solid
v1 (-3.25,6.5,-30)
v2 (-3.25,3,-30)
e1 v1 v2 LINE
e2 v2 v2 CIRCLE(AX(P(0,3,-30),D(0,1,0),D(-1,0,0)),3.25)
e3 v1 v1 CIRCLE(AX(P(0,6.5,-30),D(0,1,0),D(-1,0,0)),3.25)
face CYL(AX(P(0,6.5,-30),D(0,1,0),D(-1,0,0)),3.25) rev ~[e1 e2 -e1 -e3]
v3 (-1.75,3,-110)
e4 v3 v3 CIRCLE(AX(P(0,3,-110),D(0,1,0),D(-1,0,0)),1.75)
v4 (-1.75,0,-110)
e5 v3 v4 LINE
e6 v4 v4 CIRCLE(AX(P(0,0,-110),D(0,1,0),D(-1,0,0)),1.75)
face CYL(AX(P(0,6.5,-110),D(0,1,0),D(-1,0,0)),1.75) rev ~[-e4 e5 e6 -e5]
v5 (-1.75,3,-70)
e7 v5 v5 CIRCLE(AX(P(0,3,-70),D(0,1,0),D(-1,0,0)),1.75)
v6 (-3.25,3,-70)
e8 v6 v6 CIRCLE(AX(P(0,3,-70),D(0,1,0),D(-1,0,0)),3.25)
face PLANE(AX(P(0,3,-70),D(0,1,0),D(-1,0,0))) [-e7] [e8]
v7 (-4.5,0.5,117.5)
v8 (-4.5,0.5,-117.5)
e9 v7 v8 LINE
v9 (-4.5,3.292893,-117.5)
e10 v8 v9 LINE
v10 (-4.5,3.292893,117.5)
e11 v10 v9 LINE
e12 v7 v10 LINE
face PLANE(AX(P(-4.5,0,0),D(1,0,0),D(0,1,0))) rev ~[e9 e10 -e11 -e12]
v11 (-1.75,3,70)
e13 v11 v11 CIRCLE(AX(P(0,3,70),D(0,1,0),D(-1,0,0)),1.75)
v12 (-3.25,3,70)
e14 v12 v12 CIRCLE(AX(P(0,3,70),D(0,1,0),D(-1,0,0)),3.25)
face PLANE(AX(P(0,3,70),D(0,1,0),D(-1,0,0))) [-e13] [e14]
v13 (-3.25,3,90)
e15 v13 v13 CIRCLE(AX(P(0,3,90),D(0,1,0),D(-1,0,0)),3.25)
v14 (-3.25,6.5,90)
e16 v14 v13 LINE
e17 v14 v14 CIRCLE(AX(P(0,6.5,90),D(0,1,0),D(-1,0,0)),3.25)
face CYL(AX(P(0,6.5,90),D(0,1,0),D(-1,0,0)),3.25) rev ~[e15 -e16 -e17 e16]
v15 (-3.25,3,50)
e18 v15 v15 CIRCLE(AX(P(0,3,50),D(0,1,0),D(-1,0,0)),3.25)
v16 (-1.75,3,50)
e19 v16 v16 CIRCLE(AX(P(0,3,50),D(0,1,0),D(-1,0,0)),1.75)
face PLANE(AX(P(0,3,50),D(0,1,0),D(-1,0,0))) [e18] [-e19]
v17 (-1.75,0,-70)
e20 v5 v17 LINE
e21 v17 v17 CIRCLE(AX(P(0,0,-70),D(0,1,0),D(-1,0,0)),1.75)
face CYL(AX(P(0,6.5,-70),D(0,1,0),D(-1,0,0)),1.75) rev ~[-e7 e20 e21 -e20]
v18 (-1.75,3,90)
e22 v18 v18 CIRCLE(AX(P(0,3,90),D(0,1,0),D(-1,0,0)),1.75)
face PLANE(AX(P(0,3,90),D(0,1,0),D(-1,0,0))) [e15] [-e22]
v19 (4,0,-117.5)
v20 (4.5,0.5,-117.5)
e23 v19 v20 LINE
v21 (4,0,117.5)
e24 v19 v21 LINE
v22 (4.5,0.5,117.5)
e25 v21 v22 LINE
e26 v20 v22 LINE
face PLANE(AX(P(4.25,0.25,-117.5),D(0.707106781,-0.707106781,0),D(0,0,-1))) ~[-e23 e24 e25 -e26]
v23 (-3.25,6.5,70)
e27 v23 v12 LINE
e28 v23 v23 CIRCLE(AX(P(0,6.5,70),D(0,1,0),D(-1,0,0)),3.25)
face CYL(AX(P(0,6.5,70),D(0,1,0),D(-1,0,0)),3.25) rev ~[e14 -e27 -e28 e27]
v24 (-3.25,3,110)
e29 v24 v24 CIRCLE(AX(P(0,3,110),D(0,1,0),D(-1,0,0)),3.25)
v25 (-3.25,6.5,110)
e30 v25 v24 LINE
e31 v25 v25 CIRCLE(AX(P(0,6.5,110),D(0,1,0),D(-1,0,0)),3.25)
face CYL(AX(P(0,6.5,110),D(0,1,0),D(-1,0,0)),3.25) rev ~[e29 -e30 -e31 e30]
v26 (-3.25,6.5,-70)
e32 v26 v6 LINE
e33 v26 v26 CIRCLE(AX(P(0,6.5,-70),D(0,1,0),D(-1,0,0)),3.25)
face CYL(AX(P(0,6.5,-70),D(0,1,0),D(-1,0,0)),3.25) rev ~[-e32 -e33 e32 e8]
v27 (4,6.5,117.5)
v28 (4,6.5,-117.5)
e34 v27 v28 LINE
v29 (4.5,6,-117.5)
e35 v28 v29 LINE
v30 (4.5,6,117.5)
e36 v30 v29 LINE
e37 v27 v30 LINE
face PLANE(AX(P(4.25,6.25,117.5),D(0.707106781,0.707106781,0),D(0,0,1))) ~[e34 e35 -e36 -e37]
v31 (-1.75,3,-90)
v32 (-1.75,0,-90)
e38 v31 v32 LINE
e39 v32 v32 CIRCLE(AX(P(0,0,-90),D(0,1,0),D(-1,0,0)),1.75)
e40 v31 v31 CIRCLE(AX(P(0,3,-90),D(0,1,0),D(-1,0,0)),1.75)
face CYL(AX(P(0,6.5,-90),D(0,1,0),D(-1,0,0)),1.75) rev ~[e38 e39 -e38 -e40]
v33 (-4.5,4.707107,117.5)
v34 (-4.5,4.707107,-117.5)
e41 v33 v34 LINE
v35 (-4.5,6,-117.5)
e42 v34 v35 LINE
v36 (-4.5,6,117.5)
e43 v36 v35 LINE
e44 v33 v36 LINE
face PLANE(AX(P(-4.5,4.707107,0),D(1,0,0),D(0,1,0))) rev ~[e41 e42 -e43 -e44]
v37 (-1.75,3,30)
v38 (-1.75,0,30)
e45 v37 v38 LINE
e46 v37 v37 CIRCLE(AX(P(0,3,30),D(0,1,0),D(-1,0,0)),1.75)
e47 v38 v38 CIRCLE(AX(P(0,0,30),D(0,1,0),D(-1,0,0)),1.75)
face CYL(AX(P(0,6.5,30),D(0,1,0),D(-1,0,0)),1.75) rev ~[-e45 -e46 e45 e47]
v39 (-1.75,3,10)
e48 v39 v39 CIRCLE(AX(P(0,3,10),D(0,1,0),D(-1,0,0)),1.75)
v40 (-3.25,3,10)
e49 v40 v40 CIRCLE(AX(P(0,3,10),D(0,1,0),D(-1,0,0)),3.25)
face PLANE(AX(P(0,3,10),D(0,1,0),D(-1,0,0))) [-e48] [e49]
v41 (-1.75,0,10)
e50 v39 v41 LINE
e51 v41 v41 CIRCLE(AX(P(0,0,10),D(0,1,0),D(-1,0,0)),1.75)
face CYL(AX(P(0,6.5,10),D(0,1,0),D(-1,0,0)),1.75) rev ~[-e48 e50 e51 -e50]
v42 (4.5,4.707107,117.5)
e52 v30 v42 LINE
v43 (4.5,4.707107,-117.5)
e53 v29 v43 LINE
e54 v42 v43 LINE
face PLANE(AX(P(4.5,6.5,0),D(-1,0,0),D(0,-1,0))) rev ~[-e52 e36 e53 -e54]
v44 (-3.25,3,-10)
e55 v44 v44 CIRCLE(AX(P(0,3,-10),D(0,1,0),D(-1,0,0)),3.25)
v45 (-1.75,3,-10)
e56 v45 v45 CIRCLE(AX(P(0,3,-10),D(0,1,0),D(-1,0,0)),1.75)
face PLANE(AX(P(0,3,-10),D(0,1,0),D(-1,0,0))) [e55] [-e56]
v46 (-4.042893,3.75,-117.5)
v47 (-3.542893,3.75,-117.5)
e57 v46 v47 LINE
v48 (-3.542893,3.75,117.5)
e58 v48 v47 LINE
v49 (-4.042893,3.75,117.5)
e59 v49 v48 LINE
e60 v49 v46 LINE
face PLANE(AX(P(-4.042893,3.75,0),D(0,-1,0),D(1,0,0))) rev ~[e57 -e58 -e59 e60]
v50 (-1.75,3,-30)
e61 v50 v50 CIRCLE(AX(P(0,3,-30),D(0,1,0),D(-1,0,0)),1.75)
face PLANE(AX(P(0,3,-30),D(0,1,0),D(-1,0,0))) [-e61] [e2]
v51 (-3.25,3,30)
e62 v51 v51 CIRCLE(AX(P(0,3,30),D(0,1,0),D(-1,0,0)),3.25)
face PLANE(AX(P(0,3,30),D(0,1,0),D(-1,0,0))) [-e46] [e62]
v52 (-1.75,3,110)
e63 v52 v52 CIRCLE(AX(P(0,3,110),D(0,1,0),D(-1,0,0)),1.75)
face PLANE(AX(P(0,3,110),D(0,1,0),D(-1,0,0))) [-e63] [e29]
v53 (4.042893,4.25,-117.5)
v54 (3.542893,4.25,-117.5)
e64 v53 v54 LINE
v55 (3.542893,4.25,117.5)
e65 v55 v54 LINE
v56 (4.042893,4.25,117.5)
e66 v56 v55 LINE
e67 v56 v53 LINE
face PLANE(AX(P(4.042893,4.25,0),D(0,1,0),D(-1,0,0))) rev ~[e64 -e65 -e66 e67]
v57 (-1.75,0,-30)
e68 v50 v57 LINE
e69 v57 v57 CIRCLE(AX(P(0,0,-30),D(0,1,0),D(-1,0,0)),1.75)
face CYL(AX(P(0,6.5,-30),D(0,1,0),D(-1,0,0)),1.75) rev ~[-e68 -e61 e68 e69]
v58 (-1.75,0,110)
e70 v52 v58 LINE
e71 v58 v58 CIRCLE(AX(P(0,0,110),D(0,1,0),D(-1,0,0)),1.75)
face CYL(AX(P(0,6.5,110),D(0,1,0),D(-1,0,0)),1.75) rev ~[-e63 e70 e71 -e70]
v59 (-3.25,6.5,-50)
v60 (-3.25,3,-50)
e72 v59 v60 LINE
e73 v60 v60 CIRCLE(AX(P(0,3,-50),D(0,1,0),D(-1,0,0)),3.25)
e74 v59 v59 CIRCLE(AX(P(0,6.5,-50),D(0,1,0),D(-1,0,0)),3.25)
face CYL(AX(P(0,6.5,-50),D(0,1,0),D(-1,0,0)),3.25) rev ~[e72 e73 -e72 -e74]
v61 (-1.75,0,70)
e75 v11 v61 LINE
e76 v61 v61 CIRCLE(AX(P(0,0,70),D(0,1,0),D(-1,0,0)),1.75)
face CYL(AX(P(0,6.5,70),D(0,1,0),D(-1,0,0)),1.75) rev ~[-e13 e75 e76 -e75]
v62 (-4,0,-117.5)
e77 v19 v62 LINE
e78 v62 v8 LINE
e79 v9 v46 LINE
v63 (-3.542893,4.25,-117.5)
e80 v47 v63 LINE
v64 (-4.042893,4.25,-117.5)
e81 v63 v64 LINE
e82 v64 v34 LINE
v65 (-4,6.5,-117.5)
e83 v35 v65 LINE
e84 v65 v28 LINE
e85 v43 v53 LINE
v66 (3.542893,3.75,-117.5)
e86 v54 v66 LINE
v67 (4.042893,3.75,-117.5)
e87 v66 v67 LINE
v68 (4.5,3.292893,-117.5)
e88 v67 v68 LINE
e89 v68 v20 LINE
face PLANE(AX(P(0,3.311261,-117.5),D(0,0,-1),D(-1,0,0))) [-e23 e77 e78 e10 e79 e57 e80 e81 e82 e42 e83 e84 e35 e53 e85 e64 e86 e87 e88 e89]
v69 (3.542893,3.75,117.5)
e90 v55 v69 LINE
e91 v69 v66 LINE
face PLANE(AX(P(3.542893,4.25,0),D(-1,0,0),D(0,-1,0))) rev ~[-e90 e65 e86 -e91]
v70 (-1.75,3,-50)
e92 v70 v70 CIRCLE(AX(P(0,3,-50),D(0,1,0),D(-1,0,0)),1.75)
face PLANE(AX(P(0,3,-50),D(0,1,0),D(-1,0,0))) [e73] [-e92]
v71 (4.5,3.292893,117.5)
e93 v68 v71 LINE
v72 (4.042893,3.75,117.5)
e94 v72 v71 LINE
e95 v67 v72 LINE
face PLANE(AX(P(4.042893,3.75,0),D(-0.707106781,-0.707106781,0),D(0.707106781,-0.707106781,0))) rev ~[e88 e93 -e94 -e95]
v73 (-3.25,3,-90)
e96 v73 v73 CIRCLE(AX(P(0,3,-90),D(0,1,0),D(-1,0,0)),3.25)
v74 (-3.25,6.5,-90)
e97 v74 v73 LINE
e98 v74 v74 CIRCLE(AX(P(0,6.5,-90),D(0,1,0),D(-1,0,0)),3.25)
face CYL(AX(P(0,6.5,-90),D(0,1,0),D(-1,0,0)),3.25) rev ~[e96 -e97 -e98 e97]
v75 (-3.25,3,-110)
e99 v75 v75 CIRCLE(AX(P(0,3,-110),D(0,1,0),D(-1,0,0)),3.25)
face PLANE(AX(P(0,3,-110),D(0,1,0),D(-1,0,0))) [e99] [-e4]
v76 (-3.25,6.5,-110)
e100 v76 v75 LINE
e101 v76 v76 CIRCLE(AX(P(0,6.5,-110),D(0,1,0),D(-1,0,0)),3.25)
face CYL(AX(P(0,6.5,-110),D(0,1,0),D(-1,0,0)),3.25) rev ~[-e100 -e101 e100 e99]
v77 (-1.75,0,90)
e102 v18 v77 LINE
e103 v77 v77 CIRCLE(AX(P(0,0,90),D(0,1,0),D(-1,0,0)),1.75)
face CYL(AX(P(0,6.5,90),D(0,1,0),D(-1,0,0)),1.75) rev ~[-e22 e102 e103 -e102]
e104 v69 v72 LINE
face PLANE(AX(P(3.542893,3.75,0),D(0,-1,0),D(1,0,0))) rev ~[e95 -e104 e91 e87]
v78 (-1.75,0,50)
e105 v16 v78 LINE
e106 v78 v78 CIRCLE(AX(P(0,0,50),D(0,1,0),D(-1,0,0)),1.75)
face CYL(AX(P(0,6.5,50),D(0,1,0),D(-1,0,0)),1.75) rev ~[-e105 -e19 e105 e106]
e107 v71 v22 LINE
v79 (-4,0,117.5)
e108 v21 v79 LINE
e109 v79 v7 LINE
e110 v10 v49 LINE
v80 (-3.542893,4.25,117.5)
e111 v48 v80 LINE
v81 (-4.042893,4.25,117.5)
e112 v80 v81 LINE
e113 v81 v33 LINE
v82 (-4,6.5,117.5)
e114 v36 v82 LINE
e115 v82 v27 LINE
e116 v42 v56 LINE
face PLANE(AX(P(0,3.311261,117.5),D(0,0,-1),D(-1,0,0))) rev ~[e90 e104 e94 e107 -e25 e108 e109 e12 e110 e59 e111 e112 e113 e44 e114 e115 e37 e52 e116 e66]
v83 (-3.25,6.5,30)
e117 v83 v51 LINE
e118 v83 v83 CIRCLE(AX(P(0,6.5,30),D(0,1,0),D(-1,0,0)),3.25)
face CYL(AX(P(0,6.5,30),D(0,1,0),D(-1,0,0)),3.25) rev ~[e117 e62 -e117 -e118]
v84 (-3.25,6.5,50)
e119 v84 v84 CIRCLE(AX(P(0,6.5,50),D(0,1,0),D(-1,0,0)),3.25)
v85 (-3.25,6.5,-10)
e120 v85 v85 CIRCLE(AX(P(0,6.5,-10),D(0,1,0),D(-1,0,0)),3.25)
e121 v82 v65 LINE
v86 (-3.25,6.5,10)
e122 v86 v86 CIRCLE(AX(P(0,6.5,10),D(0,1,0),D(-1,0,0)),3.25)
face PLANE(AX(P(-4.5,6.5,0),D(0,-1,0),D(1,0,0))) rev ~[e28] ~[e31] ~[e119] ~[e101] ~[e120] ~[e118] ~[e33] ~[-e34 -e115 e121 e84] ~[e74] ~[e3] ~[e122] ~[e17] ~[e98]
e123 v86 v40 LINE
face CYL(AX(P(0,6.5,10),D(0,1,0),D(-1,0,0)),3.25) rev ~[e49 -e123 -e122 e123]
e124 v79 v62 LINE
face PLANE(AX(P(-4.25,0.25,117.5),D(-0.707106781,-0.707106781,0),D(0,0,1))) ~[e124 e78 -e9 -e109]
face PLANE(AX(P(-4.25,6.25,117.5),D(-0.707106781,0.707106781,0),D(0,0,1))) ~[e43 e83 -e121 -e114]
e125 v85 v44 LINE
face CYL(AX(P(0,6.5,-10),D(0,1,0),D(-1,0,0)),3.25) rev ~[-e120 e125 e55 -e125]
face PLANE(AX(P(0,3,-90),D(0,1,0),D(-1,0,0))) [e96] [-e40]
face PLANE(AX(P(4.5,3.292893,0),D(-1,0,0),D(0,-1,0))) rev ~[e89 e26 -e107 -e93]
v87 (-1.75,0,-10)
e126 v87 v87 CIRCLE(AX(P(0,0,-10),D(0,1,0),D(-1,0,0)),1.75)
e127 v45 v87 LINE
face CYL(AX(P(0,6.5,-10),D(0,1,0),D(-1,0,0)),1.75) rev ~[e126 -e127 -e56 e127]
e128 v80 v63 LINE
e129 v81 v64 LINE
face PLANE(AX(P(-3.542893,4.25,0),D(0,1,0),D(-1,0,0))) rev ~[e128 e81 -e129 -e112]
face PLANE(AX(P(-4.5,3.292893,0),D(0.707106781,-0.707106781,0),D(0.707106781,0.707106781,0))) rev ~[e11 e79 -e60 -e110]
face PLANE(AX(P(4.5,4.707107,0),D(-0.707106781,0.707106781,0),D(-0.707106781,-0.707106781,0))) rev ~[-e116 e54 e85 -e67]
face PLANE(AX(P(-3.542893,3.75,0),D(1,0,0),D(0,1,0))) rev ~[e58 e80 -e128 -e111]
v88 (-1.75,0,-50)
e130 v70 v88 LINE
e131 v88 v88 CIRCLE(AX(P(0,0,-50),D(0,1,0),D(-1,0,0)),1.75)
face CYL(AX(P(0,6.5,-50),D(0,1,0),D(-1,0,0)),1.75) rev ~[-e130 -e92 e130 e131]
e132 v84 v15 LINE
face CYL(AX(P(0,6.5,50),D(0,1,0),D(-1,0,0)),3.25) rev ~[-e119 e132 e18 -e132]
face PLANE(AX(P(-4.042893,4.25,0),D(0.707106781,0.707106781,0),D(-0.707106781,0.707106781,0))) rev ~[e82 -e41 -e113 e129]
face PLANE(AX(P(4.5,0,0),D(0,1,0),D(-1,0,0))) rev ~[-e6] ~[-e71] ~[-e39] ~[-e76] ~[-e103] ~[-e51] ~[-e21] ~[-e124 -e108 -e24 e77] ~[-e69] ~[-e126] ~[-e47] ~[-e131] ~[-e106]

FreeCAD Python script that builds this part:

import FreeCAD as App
import Part
import Sketcher
from FreeCAD import Vector
Q = App.Units.Quantity


def edges_at(feature, points):
    """Names of the edges that pass closest to the given points."""
    edges = feature.Shape.Edges
    near = lambda p: min(range(len(edges)), key=lambda i: edges[i].distToShape(Part.Vertex(*p))[0])
    return sorted({f"Edge{near(p) + 1}" for p in points})

doc = App.newDocument("Part")
body = doc.addObject("PartDesign::Body", "Body")

# Sketch on XY plane
sketch1 = body.newObject("Sketcher::SketchObject", "Sketch")
sketch1.AttachmentSupport = (doc.getObject("XY_Plane"), [""])
sketch1.MapMode = "FlatFace"
sketch1.addGeometry([
    Part.LineSegment(Vector(-4.5, 0, 0), Vector(4.5, 0, 0)),  # 0
    Part.LineSegment(Vector(4.5, 0, 0), Vector(4.5, 3.29, 0)),  # 1
    Part.LineSegment(Vector(4.5, 3.29, 0), Vector(4.04, 3.75, 0)),  # 2
    Part.LineSegment(Vector(4.04, 3.75, 0), Vector(3.54, 3.75, 0)),  # 3
    Part.LineSegment(Vector(3.54, 3.75, 0), Vector(3.54, 4.25, 0)),  # 4
    Part.LineSegment(Vector(3.54, 4.25, 0), Vector(4.04, 4.25, 0)),  # 5
    Part.LineSegment(Vector(4.04, 4.25, 0), Vector(4.5, 4.71, 0)),  # 6
    Part.LineSegment(Vector(4.5, 4.71, 0), Vector(4.5, 6.5, 0)),  # 7
    Part.LineSegment(Vector(4.5, 6.5, 0), Vector(-4.5, 6.5, 0)),  # 8
    Part.LineSegment(Vector(-4.5, 6.5, 0), Vector(-4.5, 4.71, 0)),  # 9
    Part.LineSegment(Vector(-4.5, 4.71, 0), Vector(-4.04, 4.25, 0)),  # 10
    Part.LineSegment(Vector(-4.04, 4.25, 0), Vector(-3.54, 4.25, 0)),  # 11
    Part.LineSegment(Vector(-3.54, 4.25, 0), Vector(-3.54, 3.75, 0)),  # 12
    Part.LineSegment(Vector(-3.54, 3.75, 0), Vector(-4.04, 3.75, 0)),  # 13
    Part.LineSegment(Vector(-4.04, 3.75, 0), Vector(-4.5, 3.29, 0)),  # 14
    Part.LineSegment(Vector(-4.5, 3.29, 0), Vector(-4.5, 0, 0)),  # 15
], False)
sketch1.addConstraint([
    Sketcher.Constraint("Coincident", 0, 2, 1, 1),
    Sketcher.Constraint("Coincident", 1, 2, 2, 1),
    Sketcher.Constraint("Coincident", 2, 2, 3, 1),
    Sketcher.Constraint("Coincident", 3, 2, 4, 1),
    Sketcher.Constraint("Coincident", 4, 2, 5, 1),
    Sketcher.Constraint("Coincident", 5, 2, 6, 1),
    Sketcher.Constraint("Coincident", 6, 2, 7, 1),
    Sketcher.Constraint("Coincident", 7, 2, 8, 1),
    Sketcher.Constraint("Coincident", 8, 2, 9, 1),
    Sketcher.Constraint("Coincident", 9, 2, 10, 1),
    Sketcher.Constraint("Coincident", 10, 2, 11, 1),
    Sketcher.Constraint("Coincident", 11, 2, 12, 1),
    Sketcher.Constraint("Coincident", 12, 2, 13, 1),
    Sketcher.Constraint("Coincident", 13, 2, 14, 1),
    Sketcher.Constraint("Coincident", 14, 2, 15, 1),
    Sketcher.Constraint("Coincident", 15, 2, 0, 1),
    Sketcher.Constraint("Horizontal", 0),
    Sketcher.Constraint("Vertical", 1),
    Sketcher.Constraint("Horizontal", 3),
    Sketcher.Constraint("Vertical", 4),
    Sketcher.Constraint("Horizontal", 5),
    Sketcher.Constraint("Vertical", 7),
    Sketcher.Constraint("Horizontal", 8),
    Sketcher.Constraint("Vertical", 9),
    Sketcher.Constraint("Horizontal", 11),
    Sketcher.Constraint("Vertical", 12),
    Sketcher.Constraint("Horizontal", 13),
    Sketcher.Constraint("Vertical", 15),
    Sketcher.Constraint("Symmetric", 0, 2, 15, 2, -1, 1),
    Sketcher.Constraint("Symmetric", 6, 2, 9, 2, -2),
    Sketcher.Constraint("Symmetric", 5, 2, 10, 2, -2),
    Sketcher.Constraint("Symmetric", 3, 2, 12, 2, -2),
    Sketcher.Constraint("Perpendicular", 2, 6),
    Sketcher.Constraint("Perpendicular", 6, 10),
    Sketcher.Constraint("Perpendicular", 10, 14),
    Sketcher.Constraint("Horizontal", 1, 2, 14, 2),
    Sketcher.Constraint("Vertical", 2, 2, 5, 2),
    Sketcher.Constraint("Vertical", 1, 2, 6, 2),
    Sketcher.Constraint("Equal", 13, 4),
    Sketcher.Constraint("DistanceX", 0, 1, 0, 2, Q("9 mm")),
    Sketcher.Constraint("DistanceX", 3, 2, 3, 1, Q("0.5 mm")),
    Sketcher.Constraint("DistanceY", -1, 1, 7, 2, Q("6.5 mm")),
    Sketcher.Constraint("DistanceY", -1, 1, 2, 2, Q("3.75 mm")),
    Sketcher.Constraint("DistanceY", 1, 1, 1, 2, Q("3.292893 mm")),
])
pad1 = body.newObject("PartDesign::Pad", "Pad")
pad1.Profile = sketch1
pad1.Length = 235
pad1.Midplane = True

# Sketch on XZ plane
sketch2 = body.newObject("Sketcher::SketchObject", "Sketch001")
sketch2.AttachmentSupport = (doc.getObject("XZ_Plane"), [""])
sketch2.MapMode = "FlatFace"
sketch2.AttachmentOffset = App.Placement(Vector(0, 0, -6.5), App.Rotation())
sketch2.addGeometry([
    Part.Circle(Vector(0, -110, 0), Vector(0, 0, 1), 1.8),  # 0
    Part.Circle(Vector(0, -90, 0), Vector(0, 0, 1), 1.8),  # 1
    Part.Circle(Vector(0, -70, 0), Vector(0, 0, 1), 1.8),  # 2
    Part.Circle(Vector(0, -50, 0), Vector(0, 0, 1), 1.8),  # 3
    Part.Circle(Vector(0, -30, 0), Vector(0, 0, 1), 1.8),  # 4
    Part.Circle(Vector(0, -10, 0), Vector(0, 0, 1), 1.8),  # 5
    Part.Circle(Vector(0, 10, 0), Vector(0, 0, 1), 1.8),  # 6
    Part.Circle(Vector(0, 30, 0), Vector(0, 0, 1), 1.8),  # 7
    Part.Circle(Vector(0, 50, 0), Vector(0, 0, 1), 1.8),  # 8
    Part.Circle(Vector(0, 70, 0), Vector(0, 0, 1), 1.8),  # 9
    Part.Circle(Vector(0, 90, 0), Vector(0, 0, 1), 1.8),  # 10
    Part.Circle(Vector(0, 110, 0), Vector(0, 0, 1), 1.8),  # 11
], False)
sketch2.addConstraint([
    Sketcher.Constraint("Equal", 0, 1),
    Sketcher.Constraint("Equal", 1, 2),
    Sketcher.Constraint("Equal", 2, 3),
    Sketcher.Constraint("Equal", 3, 4),
    Sketcher.Constraint("Equal", 4, 5),
    Sketcher.Constraint("Equal", 5, 6),
    Sketcher.Constraint("Equal", 6, 7),
    Sketcher.Constraint("Equal", 7, 8),
    Sketcher.Constraint("Equal", 8, 9),
    Sketcher.Constraint("Equal", 9, 10),
    Sketcher.Constraint("Equal", 10, 11),
    Sketcher.Constraint("Symmetric", 5, 3, 6, 3, -1, 1),
    Sketcher.Constraint("Symmetric", 4, 3, 7, 3, -1, 1),
    Sketcher.Constraint("Symmetric", 3, 3, 8, 3, -1, 1),
    Sketcher.Constraint("Symmetric", 2, 3, 9, 3, -1, 1),
    Sketcher.Constraint("Symmetric", 1, 3, 10, 3, -1, 1),
    Sketcher.Constraint("Symmetric", 0, 3, 11, 3, -1, 1),
    Sketcher.Constraint("PointOnObject", 0, 3, -2),
    Sketcher.Constraint("PointOnObject", 1, 3, -2),
    Sketcher.Constraint("PointOnObject", 2, 3, -2),
    Sketcher.Constraint("PointOnObject", 3, 3, -2),
    Sketcher.Constraint("PointOnObject", 4, 3, -2),
    Sketcher.Constraint("PointOnObject", 5, 3, -2),
    Sketcher.Constraint("Diameter", 0, Q("3.5 mm")),
    Sketcher.Constraint("DistanceY", 0, 3, -1, 1, Q("110 mm")),
    Sketcher.Constraint("DistanceY", 1, 3, -1, 1, Q("90 mm")),
    Sketcher.Constraint("DistanceY", 2, 3, -1, 1, Q("70 mm")),
    Sketcher.Constraint("DistanceY", 3, 3, -1, 1, Q("50 mm")),
    Sketcher.Constraint("DistanceY", 4, 3, -1, 1, Q("30 mm")),
    Sketcher.Constraint("DistanceY", 5, 3, -1, 1, Q("10 mm")),
])
pocket1 = body.newObject("PartDesign::Pocket", "Pocket")
pocket1.Profile = sketch2
pocket1.Type = "ThroughAll"
pocket1.Reversed = True
doc.recompute()

chamfer = body.newObject("PartDesign::Chamfer", "Chamfer")
chamfer.Base = (pocket1, edges_at(pocket1, [
    (-4.5, 6.5, 0),
    (4.5, 6.5, 0),
    (4.5, 0, 0),
    (-4.5, 0, 0),
]))
chamfer.Size = 0.5

# Sketch on XZ plane
sketch3 = body.newObject("Sketcher::SketchObject", "Sketch002")
sketch3.AttachmentSupport = (doc.getObject("XZ_Plane"), [""])
sketch3.MapMode = "FlatFace"
sketch3.AttachmentOffset = App.Placement(Vector(0, 0, -6.5), App.Rotation())
sketch3.addGeometry(Part.Circle(Vector(0, -110, 0), Vector(0, 0, 1), 3.2), False)
sketch3.addConstraint([
    Sketcher.Constraint("PointOnObject", 0, 3, -2),
    Sketcher.Constraint("Diameter", 0, Q("6.5 mm")),
    Sketcher.Constraint("DistanceY", 0, 3, -1, 1, Q("110 mm")),
])
pocket2 = body.newObject("PartDesign::Pocket", "Pocket001")
pocket2.Profile = sketch3
pocket2.Length = 3.5
pocket2.Reversed = True
doc.recompute()

linearpattern = body.newObject("PartDesign::LinearPattern", "LinearPattern")
linearpattern.Originals = [pocket2]
linearpattern.Direction = (doc.getObject("Z_Axis"), [""])
linearpattern.Mode = "offset"
linearpattern.Offset = 20
linearpattern.Occurrences = 12
body.Tip = linearpattern

doc.recompute()
